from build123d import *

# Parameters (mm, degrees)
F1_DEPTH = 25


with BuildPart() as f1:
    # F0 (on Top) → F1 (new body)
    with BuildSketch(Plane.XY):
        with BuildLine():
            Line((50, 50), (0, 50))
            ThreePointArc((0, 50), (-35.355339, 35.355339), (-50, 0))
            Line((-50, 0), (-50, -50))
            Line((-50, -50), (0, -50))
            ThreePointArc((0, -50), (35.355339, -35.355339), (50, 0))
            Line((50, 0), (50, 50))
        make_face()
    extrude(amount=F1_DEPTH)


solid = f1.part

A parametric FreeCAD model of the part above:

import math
import FreeCAD as App
import Part
import Sketcher
Q = App.Units.Quantity

doc = App.newDocument("Part")
body = doc.addObject("PartDesign::Body", "Body")

sketch1 = doc.addObject("Sketcher::SketchObject", "Sketch")
body.addObject(sketch1)
sketch1.AttachmentSupport = (doc.XY_Plane, [""])
sketch1.MapMode = "FlatFace"
sketch1.addGeometry([
    Part.LineSegment(App.Vector(50, 50, 0), App.Vector(0, 50, 0)),
    Part.ArcOfCircle(Part.Circle(App.Vector(0, 0, 0), App.Vector(0, 0, 1), 50), math.radians(90), math.radians(180)),
    Part.LineSegment(App.Vector(-50, 0, 0), App.Vector(-50, -50, 0)),
    Part.LineSegment(App.Vector(-50, -50, 0), App.Vector(0, -50, 0)),
    Part.ArcOfCircle(Part.Circle(App.Vector(0, 0, 0), App.Vector(0, 0, 1), 50), math.radians(-90), math.radians(0)),
    Part.LineSegment(App.Vector(50, 0, 0), App.Vector(50, 50, 0)),
], False)
sketch1.addConstraint([
    Sketcher.Constraint("Tangent", 0, 2, 1, 1),
    Sketcher.Constraint("Tangent", 1, 2, 2, 1),
    Sketcher.Constraint("Coincident", 2, 2, 3, 1),
    Sketcher.Constraint("Tangent", 3, 2, 4, 1),
    Sketcher.Constraint("Tangent", 4, 2, 5, 1),
    Sketcher.Constraint("Coincident", 5, 2, 0, 1),
    Sketcher.Constraint("Horizontal", 0),
    Sketcher.Constraint("Vertical", 2),
    Sketcher.Constraint("Horizontal", 3),
    Sketcher.Constraint("Vertical", 5),
    Sketcher.Constraint("Coincident", 1, 3, -1, 1),
    Sketcher.Constraint("Coincident", 4, 3, -1, 1),
    Sketcher.Constraint("Equal", 1, 4),
    Sketcher.Constraint("Radius", 1, Q("50 mm")),
])
pad1 = doc.addObject("PartDesign::Pad", "Pad")
body.addObject(pad1)
pad1.Profile = sketch1
pad1.Length = 25

doc.recompute()
